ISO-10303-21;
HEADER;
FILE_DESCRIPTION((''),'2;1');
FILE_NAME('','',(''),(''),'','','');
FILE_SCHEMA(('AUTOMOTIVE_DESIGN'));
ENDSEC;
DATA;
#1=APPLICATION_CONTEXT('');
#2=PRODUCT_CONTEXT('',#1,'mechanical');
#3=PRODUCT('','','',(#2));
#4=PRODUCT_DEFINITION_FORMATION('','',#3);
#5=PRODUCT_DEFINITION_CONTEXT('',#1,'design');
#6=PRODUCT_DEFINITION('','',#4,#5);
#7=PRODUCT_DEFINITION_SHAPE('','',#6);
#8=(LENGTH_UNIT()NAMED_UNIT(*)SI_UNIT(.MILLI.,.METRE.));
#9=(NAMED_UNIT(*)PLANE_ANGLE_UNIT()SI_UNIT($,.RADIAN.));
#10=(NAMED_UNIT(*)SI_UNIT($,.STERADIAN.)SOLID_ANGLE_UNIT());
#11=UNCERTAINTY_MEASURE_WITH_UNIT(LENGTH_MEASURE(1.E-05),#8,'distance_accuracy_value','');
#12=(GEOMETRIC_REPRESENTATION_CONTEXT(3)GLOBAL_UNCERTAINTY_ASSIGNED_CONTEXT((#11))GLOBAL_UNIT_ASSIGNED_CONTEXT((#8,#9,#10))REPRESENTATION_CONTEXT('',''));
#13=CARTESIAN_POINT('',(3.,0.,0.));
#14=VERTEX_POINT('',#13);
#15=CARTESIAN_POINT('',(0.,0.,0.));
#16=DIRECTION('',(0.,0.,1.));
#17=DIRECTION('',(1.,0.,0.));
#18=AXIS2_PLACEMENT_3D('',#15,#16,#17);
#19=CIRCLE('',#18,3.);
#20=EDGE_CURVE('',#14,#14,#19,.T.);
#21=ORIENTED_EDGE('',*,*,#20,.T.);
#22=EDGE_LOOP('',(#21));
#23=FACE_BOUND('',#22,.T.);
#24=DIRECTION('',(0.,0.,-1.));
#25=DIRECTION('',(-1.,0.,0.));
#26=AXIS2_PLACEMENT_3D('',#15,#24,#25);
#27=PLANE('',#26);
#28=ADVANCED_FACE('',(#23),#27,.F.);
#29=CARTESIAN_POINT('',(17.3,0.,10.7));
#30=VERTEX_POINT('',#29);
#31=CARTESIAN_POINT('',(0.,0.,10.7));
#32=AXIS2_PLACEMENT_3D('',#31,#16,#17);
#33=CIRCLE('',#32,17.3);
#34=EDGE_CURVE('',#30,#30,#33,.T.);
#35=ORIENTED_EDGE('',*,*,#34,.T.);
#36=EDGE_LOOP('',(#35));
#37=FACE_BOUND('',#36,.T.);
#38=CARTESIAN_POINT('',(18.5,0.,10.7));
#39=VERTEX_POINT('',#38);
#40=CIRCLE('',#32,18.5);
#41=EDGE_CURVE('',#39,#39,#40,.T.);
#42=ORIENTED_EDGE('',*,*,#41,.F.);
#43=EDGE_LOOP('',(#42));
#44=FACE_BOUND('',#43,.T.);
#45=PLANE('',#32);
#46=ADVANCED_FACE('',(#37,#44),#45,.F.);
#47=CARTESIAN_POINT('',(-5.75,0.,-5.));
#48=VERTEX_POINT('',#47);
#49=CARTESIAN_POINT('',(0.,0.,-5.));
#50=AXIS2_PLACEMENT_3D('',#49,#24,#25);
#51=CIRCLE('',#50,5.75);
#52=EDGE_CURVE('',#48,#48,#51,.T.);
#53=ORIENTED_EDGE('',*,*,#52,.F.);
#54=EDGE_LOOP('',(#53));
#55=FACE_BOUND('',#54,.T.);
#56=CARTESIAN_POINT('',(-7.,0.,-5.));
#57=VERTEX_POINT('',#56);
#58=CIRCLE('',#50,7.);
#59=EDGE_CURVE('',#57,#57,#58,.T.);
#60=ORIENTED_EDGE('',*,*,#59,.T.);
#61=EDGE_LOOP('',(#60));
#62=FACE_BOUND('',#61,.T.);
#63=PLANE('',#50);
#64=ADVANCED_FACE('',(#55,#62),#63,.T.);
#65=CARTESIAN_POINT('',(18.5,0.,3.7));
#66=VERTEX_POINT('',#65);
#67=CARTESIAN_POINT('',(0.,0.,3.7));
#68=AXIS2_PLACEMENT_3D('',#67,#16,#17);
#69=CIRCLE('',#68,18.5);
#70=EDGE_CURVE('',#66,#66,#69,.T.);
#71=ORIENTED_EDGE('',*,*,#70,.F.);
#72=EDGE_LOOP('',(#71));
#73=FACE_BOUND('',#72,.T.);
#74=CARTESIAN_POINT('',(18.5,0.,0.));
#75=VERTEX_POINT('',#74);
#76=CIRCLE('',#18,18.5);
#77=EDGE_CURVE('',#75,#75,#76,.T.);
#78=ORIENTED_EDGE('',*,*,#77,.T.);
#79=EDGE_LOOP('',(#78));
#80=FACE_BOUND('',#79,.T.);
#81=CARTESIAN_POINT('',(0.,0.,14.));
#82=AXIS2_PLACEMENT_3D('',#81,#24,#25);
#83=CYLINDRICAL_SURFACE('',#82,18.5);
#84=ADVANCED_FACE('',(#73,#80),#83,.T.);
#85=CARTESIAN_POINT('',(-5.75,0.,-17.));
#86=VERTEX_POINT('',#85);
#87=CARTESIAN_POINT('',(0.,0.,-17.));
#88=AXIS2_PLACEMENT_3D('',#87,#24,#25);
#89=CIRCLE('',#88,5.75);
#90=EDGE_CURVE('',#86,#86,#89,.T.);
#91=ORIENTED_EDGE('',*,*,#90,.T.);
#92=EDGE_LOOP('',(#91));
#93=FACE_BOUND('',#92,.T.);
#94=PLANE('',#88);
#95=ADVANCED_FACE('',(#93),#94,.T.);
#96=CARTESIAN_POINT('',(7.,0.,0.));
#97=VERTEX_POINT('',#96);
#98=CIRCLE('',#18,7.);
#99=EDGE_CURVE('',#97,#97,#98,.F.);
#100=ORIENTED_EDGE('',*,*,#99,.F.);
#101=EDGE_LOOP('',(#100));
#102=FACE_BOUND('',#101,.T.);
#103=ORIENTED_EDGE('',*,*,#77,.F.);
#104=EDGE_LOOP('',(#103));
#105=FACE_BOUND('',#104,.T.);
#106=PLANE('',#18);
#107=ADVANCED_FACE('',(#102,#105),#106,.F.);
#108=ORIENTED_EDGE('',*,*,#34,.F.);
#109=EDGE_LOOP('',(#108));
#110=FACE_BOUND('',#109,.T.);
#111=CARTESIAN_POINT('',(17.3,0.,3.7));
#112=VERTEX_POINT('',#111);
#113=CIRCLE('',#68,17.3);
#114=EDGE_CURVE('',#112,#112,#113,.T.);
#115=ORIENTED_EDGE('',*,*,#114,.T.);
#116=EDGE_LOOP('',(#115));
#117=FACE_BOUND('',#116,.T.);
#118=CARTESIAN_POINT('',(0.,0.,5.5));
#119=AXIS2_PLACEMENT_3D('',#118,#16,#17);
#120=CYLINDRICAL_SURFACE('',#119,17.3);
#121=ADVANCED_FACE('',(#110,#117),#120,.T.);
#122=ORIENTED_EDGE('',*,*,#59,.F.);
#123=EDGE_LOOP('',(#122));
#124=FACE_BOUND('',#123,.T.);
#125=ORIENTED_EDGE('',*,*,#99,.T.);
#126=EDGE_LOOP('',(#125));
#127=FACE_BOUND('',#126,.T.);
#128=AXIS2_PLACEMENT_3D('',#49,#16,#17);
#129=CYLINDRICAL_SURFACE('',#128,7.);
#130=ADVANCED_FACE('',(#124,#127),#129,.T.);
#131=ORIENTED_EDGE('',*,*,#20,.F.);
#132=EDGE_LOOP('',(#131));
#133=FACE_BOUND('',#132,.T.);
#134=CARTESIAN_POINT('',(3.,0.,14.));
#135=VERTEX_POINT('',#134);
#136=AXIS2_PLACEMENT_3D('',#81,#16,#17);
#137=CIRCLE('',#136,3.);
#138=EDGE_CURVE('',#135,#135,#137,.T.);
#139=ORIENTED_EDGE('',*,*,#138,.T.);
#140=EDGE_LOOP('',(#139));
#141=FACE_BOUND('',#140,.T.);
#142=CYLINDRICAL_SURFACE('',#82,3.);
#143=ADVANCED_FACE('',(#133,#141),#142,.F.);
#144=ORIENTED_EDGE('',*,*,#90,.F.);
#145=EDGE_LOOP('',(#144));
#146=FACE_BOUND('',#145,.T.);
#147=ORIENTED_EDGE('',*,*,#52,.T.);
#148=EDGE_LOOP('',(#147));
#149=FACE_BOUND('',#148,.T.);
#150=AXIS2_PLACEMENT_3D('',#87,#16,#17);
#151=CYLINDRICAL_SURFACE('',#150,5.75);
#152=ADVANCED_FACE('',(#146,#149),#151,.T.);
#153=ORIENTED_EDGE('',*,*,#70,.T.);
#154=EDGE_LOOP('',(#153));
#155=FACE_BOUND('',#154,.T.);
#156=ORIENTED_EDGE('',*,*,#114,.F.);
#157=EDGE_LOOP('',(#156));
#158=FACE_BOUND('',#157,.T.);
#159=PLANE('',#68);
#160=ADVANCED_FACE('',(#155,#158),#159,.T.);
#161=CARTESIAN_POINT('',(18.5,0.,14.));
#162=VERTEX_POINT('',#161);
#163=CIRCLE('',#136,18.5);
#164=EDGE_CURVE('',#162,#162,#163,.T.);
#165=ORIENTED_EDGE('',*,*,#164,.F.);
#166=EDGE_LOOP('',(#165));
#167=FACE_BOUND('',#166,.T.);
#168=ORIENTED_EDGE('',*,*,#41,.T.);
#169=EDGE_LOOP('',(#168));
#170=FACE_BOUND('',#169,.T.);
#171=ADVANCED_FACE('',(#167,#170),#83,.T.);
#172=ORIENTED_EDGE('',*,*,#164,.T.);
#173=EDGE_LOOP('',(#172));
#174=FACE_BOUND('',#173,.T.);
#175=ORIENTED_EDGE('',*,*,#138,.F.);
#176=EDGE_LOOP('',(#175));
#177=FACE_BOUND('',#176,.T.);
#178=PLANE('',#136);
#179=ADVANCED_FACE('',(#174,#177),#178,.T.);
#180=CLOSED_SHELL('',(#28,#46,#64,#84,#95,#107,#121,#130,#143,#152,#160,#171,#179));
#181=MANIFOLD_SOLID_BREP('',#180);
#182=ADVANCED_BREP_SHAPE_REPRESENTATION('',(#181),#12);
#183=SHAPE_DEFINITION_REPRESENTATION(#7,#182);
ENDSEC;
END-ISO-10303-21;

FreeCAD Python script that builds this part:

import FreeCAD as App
import Part
import Sketcher

V = App.Vector

doc = App.newDocument("Part")
body = doc.addObject("PartDesign::Body", "Body")

# Sketch on XY plane
sketch1 = doc.addObject("Sketcher::SketchObject", "Sketch")
body.addObject(sketch1)
sketch1.AttachmentSupport = (doc.XY_Plane, [""])
sketch1.MapMode = "FlatFace"
sketch1.addGeometry(Part.Circle(V(0, 0, 0), V(0, 0, 1), 18.5), False)
sketch1.addGeometry(Part.Circle(V(0, 0, 0), V(0, 0, 1), 3), False)
sketch1.addConstraint(Sketcher.Constraint("Coincident", 0, 3, -1, 1))
sketch1.addConstraint(Sketcher.Constraint("Coincident", 1, 3, -1, 1))
sketch1.addConstraint(Sketcher.Constraint("Diameter", 0, 37.0))
sketch1.addConstraint(Sketcher.Constraint("Diameter", 1, 6.0))
pad1 = doc.addObject("PartDesign::Pad", "Pad")
body.addObject(pad1)
pad1.Profile = sketch1
pad1.Length = 14

# Sketch on XY plane
sketch2 = doc.addObject("Sketcher::SketchObject", "Sketch001")
body.addObject(sketch2)
sketch2.AttachmentSupport = (doc.XY_Plane, [""])
sketch2.MapMode = "FlatFace"
sketch2.AttachmentOffset = App.Placement(V(0, 0, 7.7), App.Rotation())
sketch2.addGeometry(Part.Circle(V(0, 0, 0), V(0, 0, 1), 18), False)
sketch2.addGeometry(Part.Circle(V(0, 0, 0), V(0, 0, 1), 17), False)
sketch2.addConstraint(Sketcher.Constraint("Coincident", 0, 3, -1, 1))
sketch2.addConstraint(Sketcher.Constraint("Coincident", 1, 3, -1, 1))
sketch2.addConstraint(Sketcher.Constraint("Diameter", 0, 37.0))
sketch2.addConstraint(Sketcher.Constraint("Diameter", 1, 34.6))
pocket1 = doc.addObject("PartDesign::Pocket", "Pocket")
body.addObject(pocket1)
pocket1.Profile = sketch2
pocket1.Length = 2.2

# Sketch on XY plane
sketch3 = doc.addObject("Sketcher::SketchObject", "Sketch002")
body.addObject(sketch3)
sketch3.AttachmentSupport = (doc.XY_Plane, [""])
sketch3.MapMode = "FlatFace"
sketch3.AttachmentOffset = App.Placement(V(0, 0, 7.7), App.Rotation())
sketch3.addGeometry(Part.Circle(V(0, 0, 0), V(0, 0, 1), 18), False)
sketch3.addGeometry(Part.Circle(V(0, 0, 0), V(0, 0, 1), 17), False)
sketch3.addConstraint(Sketcher.Constraint("Coincident", 0, 3, -1, 1))
sketch3.addConstraint(Sketcher.Constraint("Coincident", 1, 3, -1, 1))
sketch3.addConstraint(Sketcher.Constraint("Diameter", 0, 37.0))
sketch3.addConstraint(Sketcher.Constraint("Diameter", 1, 34.6))
pocket2 = doc.addObject("PartDesign::Pocket", "Pocket001")
body.addObject(pocket2)
pocket2.Profile = sketch3
pocket2.Length = 0.8
pocket2.Reversed = True

# Sketch on XY plane
sketch4 = doc.addObject("Sketcher::SketchObject", "Sketch003")
body.addObject(sketch4)
sketch4.AttachmentSupport = (doc.XY_Plane, [""])
sketch4.MapMode = "FlatFace"
sketch4.AttachmentOffset = App.Placement(V(0, 0, 7.7), App.Rotation())
sketch4.addGeometry(Part.Circle(V(0, 0, 0), V(0, 0, 1), 18), False)
sketch4.addGeometry(Part.Circle(V(0, 0, 0), V(0, 0, 1), 17), False)
sketch4.addConstraint(Sketcher.Constraint("Coincident", 0, 3, -1, 1))
sketch4.addConstraint(Sketcher.Constraint("Coincident", 1, 3, -1, 1))
sketch4.addConstraint(Sketcher.Constraint("Diameter", 0, 37.0))
sketch4.addConstraint(Sketcher.Constraint("Diameter", 1, 34.6))
pocket3 = doc.addObject("PartDesign::Pocket", "Pocket002")
body.addObject(pocket3)
pocket3.Profile = sketch4
pocket3.Length = 4

# Sketch on XY plane
sketch5 = doc.addObject("Sketcher::SketchObject", "Sketch004")
body.addObject(sketch5)
sketch5.AttachmentSupport = (doc.XY_Plane, [""])
sketch5.MapMode = "FlatFace"
sketch5.AttachmentOffset = App.Placement(V(0, 0, 7.7), App.Rotation())
sketch5.addGeometry(Part.Circle(V(0, 0, 0), V(0, 0, 1), 18), False)
sketch5.addGeometry(Part.Circle(V(0, 0, 0), V(0, 0, 1), 17), False)
sketch5.addConstraint(Sketcher.Constraint("Coincident", 0, 3, -1, 1))
sketch5.addConstraint(Sketcher.Constraint("Coincident", 1, 3, -1, 1))
sketch5.addConstraint(Sketcher.Constraint("Diameter", 0, 37.0))
sketch5.addConstraint(Sketcher.Constraint("Diameter", 1, 34.6))
pocket4 = doc.addObject("PartDesign::Pocket", "Pocket003")
body.addObject(pocket4)
pocket4.Profile = sketch5
pocket4.Length = 3
pocket4.Reversed = True

# Sketch on XY plane
sketch6 = doc.addObject("Sketcher::SketchObject", "Sketch005")
body.addObject(sketch6)
sketch6.AttachmentSupport = (doc.XY_Plane, [""])
sketch6.MapMode = "FlatFace"
sketch6.addGeometry(Part.Circle(V(0, 0, 0), V(0, 0, 1), 7), False)
sketch6.addConstraint(Sketcher.Constraint("Coincident", 0, 3, -1, 1))
sketch6.addConstraint(Sketcher.Constraint("Diameter", 0, 14.0))
pad2 = doc.addObject("PartDesign::Pad", "Pad001")
body.addObject(pad2)
pad2.Profile = sketch6
pad2.Length = 5
pad2.Reversed = True

# Sketch on XY plane
sketch7 = doc.addObject("Sketcher::SketchObject", "Sketch006")
body.addObject(sketch7)
sketch7.AttachmentSupport = (doc.XY_Plane, [""])
sketch7.MapMode = "FlatFace"
sketch7.AttachmentOffset = App.Placement(V(0, 0, -5), App.Rotation())
sketch7.addGeometry(Part.Circle(V(0, 0, 0), V(0, 0, 1), 6), False)
sketch7.addConstraint(Sketcher.Constraint("Coincident", 0, 3, -1, 1))
sketch7.addConstraint(Sketcher.Constraint("Diameter", 0, 11.5))
pad3 = doc.addObject("PartDesign::Pad", "Pad002")
body.addObject(pad3)
pad3.Profile = sketch7
pad3.Length = 12
pad3.Reversed = True

doc.recompute()
